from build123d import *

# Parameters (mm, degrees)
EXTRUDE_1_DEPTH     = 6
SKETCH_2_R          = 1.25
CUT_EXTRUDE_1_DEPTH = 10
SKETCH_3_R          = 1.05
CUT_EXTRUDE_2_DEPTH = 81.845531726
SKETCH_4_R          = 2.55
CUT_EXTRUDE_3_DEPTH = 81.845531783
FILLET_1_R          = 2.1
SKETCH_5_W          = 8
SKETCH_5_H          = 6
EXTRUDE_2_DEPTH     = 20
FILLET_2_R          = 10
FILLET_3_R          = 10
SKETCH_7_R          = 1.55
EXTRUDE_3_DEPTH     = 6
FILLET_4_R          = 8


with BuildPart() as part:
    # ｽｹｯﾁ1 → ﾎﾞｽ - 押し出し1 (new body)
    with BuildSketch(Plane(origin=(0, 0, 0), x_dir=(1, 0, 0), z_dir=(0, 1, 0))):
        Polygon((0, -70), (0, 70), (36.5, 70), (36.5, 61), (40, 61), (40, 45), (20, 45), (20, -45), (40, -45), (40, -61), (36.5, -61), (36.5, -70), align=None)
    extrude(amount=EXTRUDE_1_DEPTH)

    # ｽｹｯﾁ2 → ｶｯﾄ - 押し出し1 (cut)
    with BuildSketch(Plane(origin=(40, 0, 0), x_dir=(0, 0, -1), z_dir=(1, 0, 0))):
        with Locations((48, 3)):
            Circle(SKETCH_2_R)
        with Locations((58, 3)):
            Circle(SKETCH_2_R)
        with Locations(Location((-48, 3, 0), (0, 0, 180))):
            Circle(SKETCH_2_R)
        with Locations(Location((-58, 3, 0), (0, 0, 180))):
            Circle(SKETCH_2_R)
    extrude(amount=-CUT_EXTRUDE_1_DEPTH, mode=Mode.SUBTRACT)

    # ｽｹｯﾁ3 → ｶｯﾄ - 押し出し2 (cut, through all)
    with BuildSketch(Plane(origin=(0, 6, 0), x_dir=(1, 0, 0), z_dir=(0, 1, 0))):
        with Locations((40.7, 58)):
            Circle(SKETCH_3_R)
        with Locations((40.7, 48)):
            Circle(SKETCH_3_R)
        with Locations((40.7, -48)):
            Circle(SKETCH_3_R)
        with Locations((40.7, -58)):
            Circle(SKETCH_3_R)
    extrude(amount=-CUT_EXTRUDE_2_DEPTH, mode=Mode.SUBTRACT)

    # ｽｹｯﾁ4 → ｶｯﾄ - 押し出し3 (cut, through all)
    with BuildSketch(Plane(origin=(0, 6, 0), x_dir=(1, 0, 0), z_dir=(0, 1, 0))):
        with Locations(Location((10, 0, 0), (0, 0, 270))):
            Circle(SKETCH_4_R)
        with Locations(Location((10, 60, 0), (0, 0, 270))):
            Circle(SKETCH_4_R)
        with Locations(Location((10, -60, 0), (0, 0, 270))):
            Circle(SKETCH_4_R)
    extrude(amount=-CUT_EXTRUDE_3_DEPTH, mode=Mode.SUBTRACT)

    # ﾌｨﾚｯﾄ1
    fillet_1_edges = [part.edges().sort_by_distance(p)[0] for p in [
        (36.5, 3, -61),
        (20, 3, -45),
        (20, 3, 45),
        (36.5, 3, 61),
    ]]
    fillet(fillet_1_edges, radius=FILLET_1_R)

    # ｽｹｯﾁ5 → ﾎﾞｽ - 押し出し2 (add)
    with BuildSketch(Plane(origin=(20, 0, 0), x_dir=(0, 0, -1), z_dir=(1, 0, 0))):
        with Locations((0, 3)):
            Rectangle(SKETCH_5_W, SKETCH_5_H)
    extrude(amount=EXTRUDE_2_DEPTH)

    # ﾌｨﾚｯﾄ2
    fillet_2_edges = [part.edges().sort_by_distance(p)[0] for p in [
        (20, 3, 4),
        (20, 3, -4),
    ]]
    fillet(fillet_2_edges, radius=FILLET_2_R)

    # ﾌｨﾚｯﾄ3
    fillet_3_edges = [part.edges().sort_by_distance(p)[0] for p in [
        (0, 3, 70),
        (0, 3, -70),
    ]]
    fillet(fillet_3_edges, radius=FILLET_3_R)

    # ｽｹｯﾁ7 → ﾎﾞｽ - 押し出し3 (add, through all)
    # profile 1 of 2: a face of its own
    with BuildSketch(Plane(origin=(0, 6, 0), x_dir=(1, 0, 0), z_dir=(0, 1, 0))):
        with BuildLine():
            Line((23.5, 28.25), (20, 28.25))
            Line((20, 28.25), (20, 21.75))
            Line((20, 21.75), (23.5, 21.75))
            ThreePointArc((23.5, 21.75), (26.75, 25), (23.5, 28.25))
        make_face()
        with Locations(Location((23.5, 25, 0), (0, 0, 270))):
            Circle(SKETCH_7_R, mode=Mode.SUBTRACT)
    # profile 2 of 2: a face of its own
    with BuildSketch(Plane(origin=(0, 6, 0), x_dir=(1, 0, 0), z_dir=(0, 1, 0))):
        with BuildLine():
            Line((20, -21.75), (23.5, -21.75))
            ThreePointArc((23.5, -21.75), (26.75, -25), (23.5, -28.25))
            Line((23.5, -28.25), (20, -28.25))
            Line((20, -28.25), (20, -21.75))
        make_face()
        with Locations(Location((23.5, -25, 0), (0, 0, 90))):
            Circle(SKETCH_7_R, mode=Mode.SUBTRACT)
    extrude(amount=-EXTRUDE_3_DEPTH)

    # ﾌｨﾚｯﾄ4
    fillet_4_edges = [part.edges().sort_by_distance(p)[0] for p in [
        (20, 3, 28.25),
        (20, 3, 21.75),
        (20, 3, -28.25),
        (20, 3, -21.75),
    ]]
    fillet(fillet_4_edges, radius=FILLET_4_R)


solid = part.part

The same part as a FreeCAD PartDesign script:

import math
import FreeCAD as App
import Part
import Sketcher

V = App.Vector


def edges_at(feature, points):
    """Names of the edges that pass closest to the given points."""
    edges = feature.Shape.Edges
    near = lambda p: min(range(len(edges)), key=lambda i: edges[i].distToShape(Part.Vertex(*p))[0])
    return sorted({f"Edge{near(p) + 1}" for p in points})


def add_polygon(sketch, points):
    """Adds a closed chain of lines whose ends are joined by coincident constraints."""
    first, n = sketch.GeometryCount, len(points)
    for a, b in zip(points, points[1:] + points[:1]):
        sketch.addGeometry(Part.LineSegment(App.Vector(*a, 0), App.Vector(*b, 0)), False)
    for i in range(n):
        sketch.addConstraint(Sketcher.Constraint("Coincident", first + i, 2, first + (i + 1) % n, 1))

doc = App.newDocument("Part")
body = doc.addObject("PartDesign::Body", "Body")

# Sketch on XZ plane
sketch1 = body.newObject("Sketcher::SketchObject", "Sketch")
sketch1.AttachmentSupport = (doc.getObject("XZ_Plane"), [""])
sketch1.MapMode = "FlatFace"
add_polygon(sketch1, [(0, -70), (0, 70), (36.5, 70), (36.5, 61), (40, 61), (40, 45), (20, 45), (20, -45), (40, -45), (40, -61), (36.5, -61), (36.5, -70)])  # lines 0-11
sketch1.addConstraint([
    Sketcher.Constraint("Vertical", 0),
    Sketcher.Constraint("Horizontal", 1),
    Sketcher.Constraint("Vertical", 2),
    Sketcher.Constraint("Horizontal", 3),
    Sketcher.Constraint("Vertical", 4),
    Sketcher.Constraint("Horizontal", 5),
    Sketcher.Constraint("Vertical", 6),
    Sketcher.Constraint("Horizontal", 7),
    Sketcher.Constraint("Vertical", 8),
    Sketcher.Constraint("Horizontal", 9),
    Sketcher.Constraint("Vertical", 10),
    Sketcher.Constraint("Horizontal", 11),
    Sketcher.Constraint("Symmetric", 0, 2, 11, 2, -1, 1),
    Sketcher.Constraint("Symmetric", 4, 2, 7, 2, -1),
    Sketcher.Constraint("Symmetric", 2, 2, 9, 2, -1),
    Sketcher.Constraint("DistanceX", 5, 2, 5, 1, 20.0),
    Sketcher.Constraint("DistanceY", 0, 1, 0, 2, 140.0),
    Sketcher.Constraint("DistanceY", 2, 2, 2, 1, 9.0),
    Sketcher.Constraint("DistanceY", 4, 2, 4, 1, 16.0),
    Sketcher.Constraint("DistanceX", 1, 1, 1, 2, 36.5),
    Sketcher.Constraint("DistanceX", 3, 1, 3, 2, 3.5),
])
pad1 = body.newObject("PartDesign::Pad", "Pad")
pad1.Profile = sketch1
pad1.Length = 6
pad1.Reversed = True

# Sketch on YZ plane
sketch2 = body.newObject("Sketcher::SketchObject", "Sketch001")
sketch2.AttachmentSupport = (doc.getObject("YZ_Plane"), [""])
sketch2.MapMode = "FlatFace"
sketch2.AttachmentOffset = App.Placement(V(0, 0, 40), App.Rotation())
sketch2.addGeometry([
    Part.Circle(V(3, -48, 0), V(0, 0, 1), 1.2),
    Part.Circle(V(3, -58, 0), V(0, 0, 1), 1.2),
    Part.Circle(V(3, 48, 0), V(0, 0, 1), 1.2),
    Part.Circle(V(3, 58, 0), V(0, 0, 1), 1.2),
], False)
sketch2.addConstraint([
    Sketcher.Constraint("Equal", 0, 1),
    Sketcher.Constraint("Equal", 1, 2),
    Sketcher.Constraint("Equal", 2, 3),
    Sketcher.Constraint("Symmetric", 0, 3, 2, 3, -1),
    Sketcher.Constraint("Symmetric", 1, 3, 3, 3, -1),
    Sketcher.Constraint("Vertical", 0, 3, 1, 3),
    Sketcher.Constraint("Diameter", 0, 2.5),
    Sketcher.Constraint("DistanceX", -1, 1, 0, 3, 3.0),
    Sketcher.Constraint("DistanceY", 0, 3, -1, 1, 48.0),
    Sketcher.Constraint("DistanceY", 1, 3, -1, 1, 58.0),
])
pocket1 = body.newObject("PartDesign::Pocket", "Pocket")
pocket1.Profile = sketch2
pocket1.Length = 10

# Sketch on XZ plane
sketch3 = body.newObject("Sketcher::SketchObject", "Sketch002")
sketch3.AttachmentSupport = (doc.getObject("XZ_Plane"), [""])
sketch3.MapMode = "FlatFace"
sketch3.AttachmentOffset = App.Placement(V(0, 0, -6), App.Rotation())
sketch3.addGeometry([
    Part.Circle(V(40.7, -58, 0), V(0, 0, 1), 1.1),
    Part.Circle(V(40.7, -48, 0), V(0, 0, 1), 1.1),
    Part.Circle(V(40.7, 48, 0), V(0, 0, 1), 1.1),
    Part.Circle(V(40.7, 58, 0), V(0, 0, 1), 1.1),
], False)
sketch3.addConstraint([
    Sketcher.Constraint("Equal", 0, 1),
    Sketcher.Constraint("Equal", 1, 2),
    Sketcher.Constraint("Equal", 2, 3),
    Sketcher.Constraint("Symmetric", 1, 3, 2, 3, -1),
    Sketcher.Constraint("Symmetric", 0, 3, 3, 3, -1),
    Sketcher.Constraint("Vertical", 0, 3, 1, 3),
    Sketcher.Constraint("Diameter", 0, 2.1),
    Sketcher.Constraint("DistanceY", 0, 3, -1, 1, 58.0),
    Sketcher.Constraint("DistanceY", 1, 3, -1, 1, 48.0),
    Sketcher.Constraint("DistanceX", -1, 1, 0, 3, 40.7),
])
pocket2 = body.newObject("PartDesign::Pocket", "Pocket001")
pocket2.Profile = sketch3
pocket2.Type = "ThroughAll"
pocket2.Reversed = True

# Sketch on XZ plane
sketch4 = body.newObject("Sketcher::SketchObject", "Sketch003")
sketch4.AttachmentSupport = (doc.getObject("XZ_Plane"), [""])
sketch4.MapMode = "FlatFace"
sketch4.AttachmentOffset = App.Placement(V(0, 0, -6), App.Rotation())
sketch4.addGeometry([
    Part.Circle(V(10, 0, 0), V(0, 0, 1), 2.5),
    Part.Circle(V(10, -60, 0), V(0, 0, 1), 2.5),
    Part.Circle(V(10, 60, 0), V(0, 0, 1), 2.5),
], False)
sketch4.addConstraint([
    Sketcher.Constraint("Equal", 0, 1),
    Sketcher.Constraint("Equal", 1, 2),
    Sketcher.Constraint("Symmetric", 1, 3, 2, 3, -1),
    Sketcher.Constraint("PointOnObject", 0, 3, -1),
    Sketcher.Constraint("Vertical", 0, 3, 1, 3),
    Sketcher.Constraint("Diameter", 0, 5.1),
    Sketcher.Constraint("DistanceX", -1, 1, 0, 3, 10.0),
    Sketcher.Constraint("DistanceY", 1, 3, -1, 1, 60.0),
])
pocket3 = body.newObject("PartDesign::Pocket", "Pocket002")
pocket3.Profile = sketch4
pocket3.Type = "ThroughAll"
pocket3.Reversed = True
doc.recompute()

fillet = body.newObject("PartDesign::Fillet", "Fillet")
fillet.Base = (pocket3, edges_at(pocket3, [
    (36.5, 3, -61),
    (20, 3, -45),
    (20, 3, 45),
    (36.5, 3, 61),
]))
fillet.Radius = 2.1

# Sketch on YZ plane
sketch5 = body.newObject("Sketcher::SketchObject", "Sketch004")
sketch5.AttachmentSupport = (doc.getObject("YZ_Plane"), [""])
sketch5.MapMode = "FlatFace"
sketch5.AttachmentOffset = App.Placement(V(0, 0, 20), App.Rotation())
add_polygon(sketch5, [(6, 4), (0, 4), (0, -4), (6, -4)])  # lines 0-3
sketch5.addConstraint([
    Sketcher.Constraint("Horizontal", 0),
    Sketcher.Constraint("Vertical", 1),
    Sketcher.Constraint("Horizontal", 2),
    Sketcher.Constraint("Vertical", 3),
    Sketcher.Constraint("Symmetric", 0, 2, 1, 2, -1, 1),
    Sketcher.Constraint("DistanceX", 0, 2, 0, 1, 6.0),
    Sketcher.Constraint("DistanceY", 1, 2, 1, 1, 8.0),
])
pad2 = body.newObject("PartDesign::Pad", "Pad001")
pad2.Profile = sketch5
pad2.Length = 20
doc.recompute()

fillet2 = body.newObject("PartDesign::Fillet", "Fillet001")
fillet2.Base = (pad2, edges_at(pad2, [(20, 3, 4), (20, 3, -4)]))
fillet2.Radius = 10
doc.recompute()

fillet3 = body.newObject("PartDesign::Fillet", "Fillet002")
fillet3.Base = (fillet2, edges_at(fillet2, [(0, 3, 70), (0, 3, -70)]))
fillet3.Radius = 10

# Sketch on XZ plane
sketch6 = body.newObject("Sketcher::SketchObject", "Sketch005")
sketch6.AttachmentSupport = (doc.getObject("XZ_Plane"), [""])
sketch6.MapMode = "FlatFace"
sketch6.AttachmentOffset = App.Placement(V(0, 0, -6), App.Rotation())
sketch6.addGeometry([
    Part.LineSegment(V(23.5, -28.2, 0), V(20, -28.2, 0)),  # 0
    Part.LineSegment(V(20, -28.2, 0), V(20, -21.8, 0)),  # 1
    Part.LineSegment(V(20, -21.8, 0), V(23.5, -21.8, 0)),  # 2
    Part.ArcOfCircle(Part.Circle(V(23.5, -25, 0), V(0, 0, 1), 3.2), math.radians(-90), math.radians(90)),  # 3
    Part.Circle(V(23.5, -25, 0), V(0, 0, 1), 1.6),  # 4
    Part.LineSegment(V(23.5, 21.8, 0), V(20, 21.8, 0)),  # 5
    Part.LineSegment(V(20, 21.8, 0), V(20, 28.2, 0)),  # 6
    Part.LineSegment(V(20, 28.2, 0), V(23.5, 28.2, 0)),  # 7
    Part.ArcOfCircle(Part.Circle(V(23.5, 25, 0), V(0, 0, 1), 3.2), math.radians(-90), math.radians(90)),  # 8
    Part.Circle(V(23.5, 25, 0), V(0, 0, 1), 1.6),  # 9
], False)
sketch6.addConstraint([
    Sketcher.Constraint("Coincident", 0, 2, 1, 1),
    Sketcher.Constraint("Coincident", 1, 2, 2, 1),
    Sketcher.Constraint("Tangent", 2, 2, 3, 2),
    Sketcher.Constraint("Tangent", 3, 1, 0, 1),
    Sketcher.Constraint("Coincident", 5, 2, 6, 1),
    Sketcher.Constraint("Coincident", 6, 2, 7, 1),
    Sketcher.Constraint("Tangent", 7, 2, 8, 2),
    Sketcher.Constraint("Tangent", 8, 1, 5, 1),
    Sketcher.Constraint("Horizontal", 0),
    Sketcher.Constraint("Vertical", 1),
    Sketcher.Constraint("Horizontal", 2),
    Sketcher.Constraint("Horizontal", 5),
    Sketcher.Constraint("Vertical", 6),
    Sketcher.Constraint("Horizontal", 7),
    Sketcher.Constraint("Coincident", 4, 3, 3, 3),
    Sketcher.Constraint("Coincident", 9, 3, 8, 3),
    Sketcher.Constraint("Equal", 3, 8),
    Sketcher.Constraint("Equal", 4, 9),
    Sketcher.Constraint("Symmetric", 3, 3, 8, 3, -1),
    Sketcher.Constraint("Vertical", 1, 2, 5, 2),
    Sketcher.Constraint("Diameter", 4, 3.1),
    Sketcher.Constraint("Radius", 3, 3.25),
    Sketcher.Constraint("DistanceX", 0, 2, 0, 1, 3.5),
    Sketcher.Constraint("DistanceY", 3, 3, -1, 1, 25.0),
    Sketcher.Constraint("DistanceX", -1, 1, 0, 2, 20.0),
])
pad3 = body.newObject("PartDesign::Pad", "Pad002")
pad3.Profile = sketch6
pad3.Length = 6
doc.recompute()

fillet4 = body.newObject("PartDesign::Fillet", "Fillet003")
fillet4.Base = (pad3, edges_at(pad3, [
    (20, 3, 28.25),
    (20, 3, 21.75),
    (20, 3, -28.25),
    (20, 3, -21.75),
]))
fillet4.Radius = 8

doc.recompute()
